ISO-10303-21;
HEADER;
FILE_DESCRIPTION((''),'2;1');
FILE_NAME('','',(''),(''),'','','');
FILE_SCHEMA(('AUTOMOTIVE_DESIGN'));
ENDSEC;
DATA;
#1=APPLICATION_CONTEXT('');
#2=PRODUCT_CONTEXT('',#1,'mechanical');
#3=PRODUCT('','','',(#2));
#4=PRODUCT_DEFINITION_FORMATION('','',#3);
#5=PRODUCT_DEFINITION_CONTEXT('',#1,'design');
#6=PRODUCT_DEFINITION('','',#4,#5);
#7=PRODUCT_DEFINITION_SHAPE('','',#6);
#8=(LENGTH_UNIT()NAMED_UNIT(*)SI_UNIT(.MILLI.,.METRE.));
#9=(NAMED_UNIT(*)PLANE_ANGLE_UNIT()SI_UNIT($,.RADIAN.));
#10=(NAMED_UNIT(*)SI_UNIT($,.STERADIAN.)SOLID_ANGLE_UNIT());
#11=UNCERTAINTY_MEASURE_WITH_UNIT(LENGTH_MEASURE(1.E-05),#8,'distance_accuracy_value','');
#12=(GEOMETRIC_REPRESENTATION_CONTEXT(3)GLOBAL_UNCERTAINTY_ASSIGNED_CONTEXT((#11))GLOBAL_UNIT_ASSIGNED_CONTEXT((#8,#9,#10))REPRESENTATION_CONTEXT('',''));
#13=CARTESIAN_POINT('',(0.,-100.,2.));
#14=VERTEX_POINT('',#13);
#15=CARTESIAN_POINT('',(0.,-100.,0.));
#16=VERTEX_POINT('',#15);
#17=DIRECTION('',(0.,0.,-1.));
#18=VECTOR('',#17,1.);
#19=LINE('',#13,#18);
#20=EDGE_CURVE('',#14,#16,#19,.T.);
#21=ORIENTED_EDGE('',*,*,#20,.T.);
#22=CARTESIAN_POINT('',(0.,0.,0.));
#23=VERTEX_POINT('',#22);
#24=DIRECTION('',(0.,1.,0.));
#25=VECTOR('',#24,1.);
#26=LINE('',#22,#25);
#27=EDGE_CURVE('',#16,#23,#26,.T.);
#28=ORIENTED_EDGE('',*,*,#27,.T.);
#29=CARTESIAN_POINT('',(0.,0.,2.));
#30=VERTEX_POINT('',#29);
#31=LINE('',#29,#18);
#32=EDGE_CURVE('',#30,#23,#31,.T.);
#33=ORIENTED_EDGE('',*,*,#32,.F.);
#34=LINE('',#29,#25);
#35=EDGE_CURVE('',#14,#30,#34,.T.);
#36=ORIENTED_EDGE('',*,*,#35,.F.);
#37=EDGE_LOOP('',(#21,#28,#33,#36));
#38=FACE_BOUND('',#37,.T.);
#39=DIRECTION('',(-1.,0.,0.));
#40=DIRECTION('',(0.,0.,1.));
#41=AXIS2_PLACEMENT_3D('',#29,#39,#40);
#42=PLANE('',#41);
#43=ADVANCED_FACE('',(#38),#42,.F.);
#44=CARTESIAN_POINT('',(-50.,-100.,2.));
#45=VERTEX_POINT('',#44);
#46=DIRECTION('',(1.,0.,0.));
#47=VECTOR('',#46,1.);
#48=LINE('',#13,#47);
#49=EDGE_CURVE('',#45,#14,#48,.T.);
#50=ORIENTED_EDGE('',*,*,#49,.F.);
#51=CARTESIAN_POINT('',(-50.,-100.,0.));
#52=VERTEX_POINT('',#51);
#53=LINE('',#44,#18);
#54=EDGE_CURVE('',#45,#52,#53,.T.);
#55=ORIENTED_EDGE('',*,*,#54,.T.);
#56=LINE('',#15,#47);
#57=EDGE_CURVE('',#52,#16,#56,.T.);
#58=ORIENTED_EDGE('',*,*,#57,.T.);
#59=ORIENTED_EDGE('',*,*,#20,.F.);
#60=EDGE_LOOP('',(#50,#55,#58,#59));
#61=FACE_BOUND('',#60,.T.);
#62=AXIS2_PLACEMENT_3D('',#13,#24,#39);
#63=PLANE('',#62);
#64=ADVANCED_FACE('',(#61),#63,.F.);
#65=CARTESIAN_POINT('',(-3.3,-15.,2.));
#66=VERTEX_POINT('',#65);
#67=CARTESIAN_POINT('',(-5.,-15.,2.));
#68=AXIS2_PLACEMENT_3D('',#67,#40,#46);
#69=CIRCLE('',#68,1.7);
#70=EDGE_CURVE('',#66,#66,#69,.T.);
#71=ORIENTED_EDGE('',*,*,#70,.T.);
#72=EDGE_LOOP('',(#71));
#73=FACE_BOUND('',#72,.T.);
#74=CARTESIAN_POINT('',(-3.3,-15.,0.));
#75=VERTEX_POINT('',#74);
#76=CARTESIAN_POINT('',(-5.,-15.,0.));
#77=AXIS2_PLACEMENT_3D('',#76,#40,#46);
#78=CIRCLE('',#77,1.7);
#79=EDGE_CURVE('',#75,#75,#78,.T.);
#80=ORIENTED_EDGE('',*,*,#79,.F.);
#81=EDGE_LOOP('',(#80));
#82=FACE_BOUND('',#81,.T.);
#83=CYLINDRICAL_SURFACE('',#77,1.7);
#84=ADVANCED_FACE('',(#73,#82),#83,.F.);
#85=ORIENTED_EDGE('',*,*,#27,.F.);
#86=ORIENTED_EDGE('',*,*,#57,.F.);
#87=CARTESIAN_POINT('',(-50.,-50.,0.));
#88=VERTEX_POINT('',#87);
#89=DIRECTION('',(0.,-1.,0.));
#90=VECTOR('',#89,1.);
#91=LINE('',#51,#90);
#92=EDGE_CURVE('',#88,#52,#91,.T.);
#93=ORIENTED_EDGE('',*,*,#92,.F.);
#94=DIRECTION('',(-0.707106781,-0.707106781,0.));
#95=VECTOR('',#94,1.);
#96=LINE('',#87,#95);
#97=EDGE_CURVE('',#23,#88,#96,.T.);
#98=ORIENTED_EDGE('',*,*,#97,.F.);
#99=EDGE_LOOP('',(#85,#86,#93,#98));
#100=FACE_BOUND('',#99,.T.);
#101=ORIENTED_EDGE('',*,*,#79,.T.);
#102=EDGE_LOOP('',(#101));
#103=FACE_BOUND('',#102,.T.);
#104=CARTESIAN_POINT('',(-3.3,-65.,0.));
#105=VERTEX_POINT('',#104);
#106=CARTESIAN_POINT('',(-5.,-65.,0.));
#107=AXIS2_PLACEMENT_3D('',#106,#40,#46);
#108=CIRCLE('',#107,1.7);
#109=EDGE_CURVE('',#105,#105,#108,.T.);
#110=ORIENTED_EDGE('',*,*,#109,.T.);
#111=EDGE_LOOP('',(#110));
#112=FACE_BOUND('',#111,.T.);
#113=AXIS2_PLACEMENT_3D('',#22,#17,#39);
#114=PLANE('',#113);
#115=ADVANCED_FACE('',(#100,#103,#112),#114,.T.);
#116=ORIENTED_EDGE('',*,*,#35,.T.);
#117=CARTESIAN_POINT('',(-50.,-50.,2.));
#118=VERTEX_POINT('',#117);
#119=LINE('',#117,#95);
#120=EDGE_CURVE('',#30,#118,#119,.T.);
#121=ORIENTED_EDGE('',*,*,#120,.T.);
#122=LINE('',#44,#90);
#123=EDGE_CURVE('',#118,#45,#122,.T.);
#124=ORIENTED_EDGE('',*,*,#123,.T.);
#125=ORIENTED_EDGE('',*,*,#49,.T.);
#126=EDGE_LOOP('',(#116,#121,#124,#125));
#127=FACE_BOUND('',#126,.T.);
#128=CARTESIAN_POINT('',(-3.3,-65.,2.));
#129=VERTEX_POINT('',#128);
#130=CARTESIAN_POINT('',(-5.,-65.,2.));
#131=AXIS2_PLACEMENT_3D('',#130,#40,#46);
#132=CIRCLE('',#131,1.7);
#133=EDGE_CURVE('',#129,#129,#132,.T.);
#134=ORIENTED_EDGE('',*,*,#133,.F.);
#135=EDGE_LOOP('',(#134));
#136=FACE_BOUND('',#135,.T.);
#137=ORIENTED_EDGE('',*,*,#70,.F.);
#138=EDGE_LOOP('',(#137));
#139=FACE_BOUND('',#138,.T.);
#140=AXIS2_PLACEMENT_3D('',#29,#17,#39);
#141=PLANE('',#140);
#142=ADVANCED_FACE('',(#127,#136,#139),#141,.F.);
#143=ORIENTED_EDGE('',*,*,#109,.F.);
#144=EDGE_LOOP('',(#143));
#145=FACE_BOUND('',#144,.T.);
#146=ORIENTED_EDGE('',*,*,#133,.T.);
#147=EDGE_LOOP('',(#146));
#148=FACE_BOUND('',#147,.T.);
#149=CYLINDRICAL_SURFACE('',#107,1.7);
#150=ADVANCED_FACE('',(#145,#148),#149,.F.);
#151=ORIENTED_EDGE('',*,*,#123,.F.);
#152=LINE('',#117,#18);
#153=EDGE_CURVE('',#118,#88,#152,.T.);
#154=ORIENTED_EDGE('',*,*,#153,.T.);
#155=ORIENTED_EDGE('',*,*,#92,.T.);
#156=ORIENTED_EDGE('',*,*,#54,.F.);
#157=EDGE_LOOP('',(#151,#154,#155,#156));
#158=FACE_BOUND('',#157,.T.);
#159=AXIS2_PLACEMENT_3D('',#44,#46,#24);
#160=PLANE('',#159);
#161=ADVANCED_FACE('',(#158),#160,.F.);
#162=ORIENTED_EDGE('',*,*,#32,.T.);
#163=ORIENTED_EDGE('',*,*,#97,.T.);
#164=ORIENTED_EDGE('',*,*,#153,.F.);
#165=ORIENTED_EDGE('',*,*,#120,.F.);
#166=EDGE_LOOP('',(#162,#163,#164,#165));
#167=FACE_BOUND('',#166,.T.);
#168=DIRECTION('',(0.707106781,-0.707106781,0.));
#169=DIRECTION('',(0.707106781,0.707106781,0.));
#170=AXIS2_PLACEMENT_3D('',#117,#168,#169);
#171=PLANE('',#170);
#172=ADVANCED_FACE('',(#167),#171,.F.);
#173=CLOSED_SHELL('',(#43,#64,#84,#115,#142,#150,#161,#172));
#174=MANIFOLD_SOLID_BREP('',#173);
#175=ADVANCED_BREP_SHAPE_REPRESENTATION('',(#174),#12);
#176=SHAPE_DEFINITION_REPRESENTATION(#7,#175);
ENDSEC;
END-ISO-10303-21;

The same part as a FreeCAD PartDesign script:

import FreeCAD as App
import Part
import Sketcher
from FreeCAD import Vector


def add_polygon(sketch, points):
    """Adds a closed chain of lines whose ends are joined by coincident constraints."""
    first, n = sketch.GeometryCount, len(points)
    for a, b in zip(points, points[1:] + points[:1]):
        sketch.addGeometry(Part.LineSegment(App.Vector(*a, 0), App.Vector(*b, 0)), False)
    for i in range(n):
        sketch.addConstraint(Sketcher.Constraint("Coincident", first + i, 2, first + (i + 1) % n, 1))

doc = App.newDocument("Part")
body = doc.addObject("PartDesign::Body", "Body")

sketch1 = body.newObject("Sketcher::SketchObject", "Sketch")
sketch1.AttachmentSupport = (doc.getObject("XY_Plane"), [""])
sketch1.MapMode = "FlatFace"
add_polygon(sketch1, [(0, -100), (0, 0), (-50, -50), (-50, -100)])
sketch1.addConstraint([
    Sketcher.Constraint("Vertical", 0),
    Sketcher.Constraint("Vertical", 2),
    Sketcher.Constraint("Horizontal", 3),
    Sketcher.Constraint("Coincident", 0, 2, -1, 1),
    Sketcher.Constraint("Equal", 3, 2),
    Sketcher.Constraint("DistanceX", 3, 1, 3, 2, 50.0),
    Sketcher.Constraint("DistanceY", 0, 1, 0, 2, 100.0),
])
pad1 = body.newObject("PartDesign::Pad", "Pad")
pad1.Profile = sketch1
pad1.Length = 2

sketch2 = body.newObject("Sketcher::SketchObject", "Sketch001")
sketch2.AttachmentSupport = (doc.getObject("XY_Plane"), [""])
sketch2.MapMode = "FlatFace"
sketch2.AttachmentOffset = App.Placement(Vector(0, 0, 2), App.Rotation())
sketch2.addGeometry([
    Part.Circle(Vector(-5, -15, 0), Vector(0, 0, 1), 1.7),
    Part.Circle(Vector(-5, -65, 0), Vector(0, 0, 1), 1.7),
], False)
sketch2.addConstraint([
    Sketcher.Constraint("Equal", 0, 1),
    Sketcher.Constraint("Vertical", 0, 3, 1, 3),
    Sketcher.Constraint("Diameter", 0, 3.4),
    Sketcher.Constraint("DistanceX", 0, 3, -1, 1, 5.0),
    Sketcher.Constraint("DistanceY", 0, 3, -1, 1, 15.0),
    Sketcher.Constraint("DistanceY", 1, 3, -1, 1, 65.0),
])
pocket1 = body.newObject("PartDesign::Pocket", "Pocket")
pocket1.Profile = sketch2
pocket1.Length = 2

doc.recompute()
